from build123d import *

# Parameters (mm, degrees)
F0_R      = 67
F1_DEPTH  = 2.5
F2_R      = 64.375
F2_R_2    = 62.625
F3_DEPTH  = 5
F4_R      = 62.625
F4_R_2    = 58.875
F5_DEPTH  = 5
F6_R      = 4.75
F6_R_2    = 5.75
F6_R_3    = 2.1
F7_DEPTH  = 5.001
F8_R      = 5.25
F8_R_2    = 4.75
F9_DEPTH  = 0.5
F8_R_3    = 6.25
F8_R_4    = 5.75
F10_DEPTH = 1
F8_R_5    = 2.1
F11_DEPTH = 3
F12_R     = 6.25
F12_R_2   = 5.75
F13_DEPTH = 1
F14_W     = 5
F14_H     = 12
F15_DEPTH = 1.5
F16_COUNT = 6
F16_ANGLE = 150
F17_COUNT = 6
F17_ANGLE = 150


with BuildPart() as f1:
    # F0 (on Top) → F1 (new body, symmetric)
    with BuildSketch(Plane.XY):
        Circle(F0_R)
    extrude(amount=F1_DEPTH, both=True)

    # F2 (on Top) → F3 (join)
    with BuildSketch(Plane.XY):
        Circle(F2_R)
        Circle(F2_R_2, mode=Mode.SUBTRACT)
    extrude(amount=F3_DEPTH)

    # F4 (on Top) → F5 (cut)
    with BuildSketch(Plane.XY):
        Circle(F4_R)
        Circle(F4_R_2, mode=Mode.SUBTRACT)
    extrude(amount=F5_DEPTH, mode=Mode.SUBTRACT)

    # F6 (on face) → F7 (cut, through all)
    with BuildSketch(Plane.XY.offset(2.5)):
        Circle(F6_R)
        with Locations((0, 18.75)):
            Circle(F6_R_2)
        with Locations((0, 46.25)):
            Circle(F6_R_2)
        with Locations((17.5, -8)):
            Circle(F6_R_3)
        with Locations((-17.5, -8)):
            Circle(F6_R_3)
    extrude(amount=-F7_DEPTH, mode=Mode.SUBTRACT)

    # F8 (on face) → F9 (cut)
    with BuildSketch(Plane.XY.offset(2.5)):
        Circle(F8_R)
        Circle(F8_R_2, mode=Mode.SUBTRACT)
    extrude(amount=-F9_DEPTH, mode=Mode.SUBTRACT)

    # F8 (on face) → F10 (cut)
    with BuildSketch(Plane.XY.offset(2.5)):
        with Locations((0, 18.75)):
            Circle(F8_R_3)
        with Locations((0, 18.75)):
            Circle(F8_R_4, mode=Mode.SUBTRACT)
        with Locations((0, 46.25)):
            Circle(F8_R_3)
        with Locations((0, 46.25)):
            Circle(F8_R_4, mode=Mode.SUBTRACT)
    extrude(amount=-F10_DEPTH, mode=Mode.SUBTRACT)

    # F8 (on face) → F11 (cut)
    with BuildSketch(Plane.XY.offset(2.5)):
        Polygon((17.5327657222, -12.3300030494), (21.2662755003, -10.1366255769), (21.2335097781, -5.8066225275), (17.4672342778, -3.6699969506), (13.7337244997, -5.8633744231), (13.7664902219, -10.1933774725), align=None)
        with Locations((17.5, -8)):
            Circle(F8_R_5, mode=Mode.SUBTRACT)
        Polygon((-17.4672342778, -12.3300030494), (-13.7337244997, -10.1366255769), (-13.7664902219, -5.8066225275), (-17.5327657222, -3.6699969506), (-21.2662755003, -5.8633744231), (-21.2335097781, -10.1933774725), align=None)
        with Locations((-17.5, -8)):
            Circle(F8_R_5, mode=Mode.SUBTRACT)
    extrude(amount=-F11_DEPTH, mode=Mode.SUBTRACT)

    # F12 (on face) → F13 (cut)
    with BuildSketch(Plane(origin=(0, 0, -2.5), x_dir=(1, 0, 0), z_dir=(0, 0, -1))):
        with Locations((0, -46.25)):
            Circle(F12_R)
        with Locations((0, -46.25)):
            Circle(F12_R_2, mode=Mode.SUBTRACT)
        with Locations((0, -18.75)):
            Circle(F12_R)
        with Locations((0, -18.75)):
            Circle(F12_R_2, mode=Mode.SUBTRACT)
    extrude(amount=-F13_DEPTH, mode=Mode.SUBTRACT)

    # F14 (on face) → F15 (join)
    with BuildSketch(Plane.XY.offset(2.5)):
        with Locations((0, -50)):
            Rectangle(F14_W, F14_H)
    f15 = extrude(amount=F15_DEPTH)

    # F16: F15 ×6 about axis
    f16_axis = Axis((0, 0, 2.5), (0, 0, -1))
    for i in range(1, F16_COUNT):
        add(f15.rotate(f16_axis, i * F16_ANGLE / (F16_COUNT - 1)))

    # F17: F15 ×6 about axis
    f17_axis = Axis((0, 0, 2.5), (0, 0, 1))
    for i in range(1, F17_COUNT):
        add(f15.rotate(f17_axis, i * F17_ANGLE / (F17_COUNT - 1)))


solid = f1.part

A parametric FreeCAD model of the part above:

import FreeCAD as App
import Part
import Sketcher

doc = App.newDocument("Part")
body = doc.addObject("PartDesign::Body", "Body")

# Sketch on XY plane
sketch1 = body.newObject("Sketcher::SketchObject", "Sketch")
sketch1.AttachmentSupport = (doc.getObject("XY_Plane"), [""])
sketch1.MapMode = "FlatFace"
sketch1.addGeometry(Part.Circle(App.Vector(0, 0, 0), App.Vector(0, 0, 1), 67), False)
sketch1.addConstraint([
    Sketcher.Constraint("Coincident", 0, 3, -1, 1),
    Sketcher.Constraint("Diameter", 0, 134.0),
])
pad1 = body.newObject("PartDesign::Pad", "Pad")
pad1.Profile = sketch1
pad1.Length = 5
pad1.Midplane = True

# Sketch on XY plane
sketch2 = body.newObject("Sketcher::SketchObject", "Sketch001")
sketch2.AttachmentSupport = (doc.getObject("XY_Plane"), [""])
sketch2.MapMode = "FlatFace"
sketch2.addGeometry([
    Part.Circle(App.Vector(0, 0, 0), App.Vector(0, 0, 1), 64),
    Part.Circle(App.Vector(0, 0, 0), App.Vector(0, 0, 1), 63),
], False)
sketch2.addConstraint([
    Sketcher.Constraint("Coincident", 0, 3, -1, 1),
    Sketcher.Constraint("Coincident", 1, 3, -1, 1),
    Sketcher.Constraint("Diameter", 0, 128.75),
    Sketcher.Constraint("Diameter", 1, 125.25),
])
pad2 = body.newObject("PartDesign::Pad", "Pad001")
pad2.Profile = sketch2
pad2.Length = 5

# Sketch on XY plane
sketch3 = body.newObject("Sketcher::SketchObject", "Sketch002")
sketch3.AttachmentSupport = (doc.getObject("XY_Plane"), [""])
sketch3.MapMode = "FlatFace"
sketch3.addGeometry([
    Part.Circle(App.Vector(0, 0, 0), App.Vector(0, 0, 1), 63),
    Part.Circle(App.Vector(0, 0, 0), App.Vector(0, 0, 1), 59),
], False)
sketch3.addConstraint([
    Sketcher.Constraint("Coincident", 0, 3, -1, 1),
    Sketcher.Constraint("Coincident", 1, 3, -1, 1),
    Sketcher.Constraint("Diameter", 0, 125.25),
    Sketcher.Constraint("Diameter", 1, 117.75),
])
pocket1 = body.newObject("PartDesign::Pocket", "Pocket")
pocket1.Profile = sketch3
pocket1.Length = 5
pocket1.Reversed = True

# Sketch on XY plane
sketch4 = body.newObject("Sketcher::SketchObject", "Sketch003")
sketch4.AttachmentSupport = (doc.getObject("XY_Plane"), [""])
sketch4.MapMode = "FlatFace"
sketch4.AttachmentOffset = App.Placement(App.Vector(0, 0, 2.5), App.Rotation())
sketch4.addGeometry([
    Part.Circle(App.Vector(0, 0, 0), App.Vector(0, 0, 1), 4.8),  # 0
    Part.Circle(App.Vector(0, 18.8, 0), App.Vector(0, 0, 1), 5.8),  # 1
    Part.Circle(App.Vector(0, 46.2, 0), App.Vector(0, 0, 1), 5.8),  # 2
    Part.Circle(App.Vector(17.5, -8, 0), App.Vector(0, 0, 1), 2.1),  # 3
    Part.Circle(App.Vector(-17.5, -8, 0), App.Vector(0, 0, 1), 2.1),  # 4
], False)
sketch4.addConstraint([
    Sketcher.Constraint("Coincident", 0, 3, -1, 1),
    Sketcher.Constraint("Equal", 1, 2),
    Sketcher.Constraint("Equal", 3, 4),
    Sketcher.Constraint("Symmetric", 3, 3, 4, 3, -2),
    Sketcher.Constraint("PointOnObject", 1, 3, -2),
    Sketcher.Constraint("PointOnObject", 2, 3, -2),
    Sketcher.Constraint("Diameter", 0, 9.5),
    Sketcher.Constraint("Diameter", 1, 11.5),
    Sketcher.Constraint("Diameter", 3, 4.2),
    Sketcher.Constraint("DistanceY", 3, 3, -1, 1, 8.0),
    Sketcher.Constraint("DistanceX", 4, 3, 3, 3, 35.0),
    Sketcher.Constraint("DistanceY", 1, 3, 2, 3, 27.5),
    Sketcher.Constraint("DistanceY", -1, 1, 1, 3, 18.75),
])
pocket2 = body.newObject("PartDesign::Pocket", "Pocket001")
pocket2.Profile = sketch4
pocket2.Type = "ThroughAll"

# Sketch on XY plane
sketch5 = body.newObject("Sketcher::SketchObject", "Sketch004")
sketch5.AttachmentSupport = (doc.getObject("XY_Plane"), [""])
sketch5.MapMode = "FlatFace"
sketch5.AttachmentOffset = App.Placement(App.Vector(0, 0, 2.5), App.Rotation())
sketch5.addGeometry([
    Part.Circle(App.Vector(0, 0, 0), App.Vector(0, 0, 1), 5.2),
    Part.Circle(App.Vector(0, 0, 0), App.Vector(0, 0, 1), 4.8),
], False)
sketch5.addConstraint([
    Sketcher.Constraint("Coincident", 0, 3, -1, 1),
    Sketcher.Constraint("Coincident", 1, 3, -1, 1),
    Sketcher.Constraint("Diameter", 0, 10.5),
    Sketcher.Constraint("Diameter", 1, 9.5),
])
pocket3 = body.newObject("PartDesign::Pocket", "Pocket002")
pocket3.Profile = sketch5
pocket3.Length = 0.5

# Sketch on XY plane
sketch6 = body.newObject("Sketcher::SketchObject", "Sketch005")
sketch6.AttachmentSupport = (doc.getObject("XY_Plane"), [""])
sketch6.MapMode = "FlatFace"
sketch6.AttachmentOffset = App.Placement(App.Vector(0, 0, 2.5), App.Rotation())
sketch6.addGeometry([
    Part.Circle(App.Vector(0, 19, 0), App.Vector(0, 0, 1), 6),
    Part.Circle(App.Vector(0, 19, 0), App.Vector(0, 0, 1), 6),
    Part.Circle(App.Vector(0, 46, 0), App.Vector(0, 0, 1), 6),
    Part.Circle(App.Vector(0, 46, 0), App.Vector(0, 0, 1), 6),
], False)
sketch6.addConstraint([
    Sketcher.Constraint("Coincident", 1, 3, 0, 3),
    Sketcher.Constraint("Coincident", 3, 3, 2, 3),
    Sketcher.Constraint("Equal", 0, 2),
    Sketcher.Constraint("Equal", 1, 3),
    Sketcher.Constraint("PointOnObject", 0, 3, -2),
    Sketcher.Constraint("PointOnObject", 2, 3, -2),
    Sketcher.Constraint("Diameter", 0, 12.5),
    Sketcher.Constraint("Diameter", 1, 11.5),
    Sketcher.Constraint("DistanceY", 0, 3, 2, 3, 27.5),
    Sketcher.Constraint("DistanceY", -1, 1, 0, 3, 18.75),
])
pocket4 = body.newObject("PartDesign::Pocket", "Pocket003")
pocket4.Profile = sketch6
pocket4.Length = 1

# Sketch on XY plane
sketch7 = body.newObject("Sketcher::SketchObject", "Sketch006")
sketch7.AttachmentSupport = (doc.getObject("XY_Plane"), [""])
sketch7.MapMode = "FlatFace"
sketch7.AttachmentOffset = App.Placement(App.Vector(0, 0, 2.5), App.Rotation())
sketch7.addGeometry([
    Part.LineSegment(App.Vector(17.5, -12.3, 0), App.Vector(21.3, -10.1, 0)),  # 0
    Part.LineSegment(App.Vector(21.3, -10.1, 0), App.Vector(21.2, -5.8, 0)),  # 1
    Part.LineSegment(App.Vector(21.2, -5.8, 0), App.Vector(17.5, -3.7, 0)),  # 2
    Part.LineSegment(App.Vector(17.5, -3.7, 0), App.Vector(13.7, -5.9, 0)),  # 3
    Part.LineSegment(App.Vector(13.7, -5.9, 0), App.Vector(13.8, -10.2, 0)),  # 4
    Part.LineSegment(App.Vector(13.8, -10.2, 0), App.Vector(17.5, -12.3, 0)),  # 5
    Part.Circle(App.Vector(17.5, -8, 0), App.Vector(0, 0, 1), 2.1),  # 6
    Part.LineSegment(App.Vector(-17.5, -12.3, 0), App.Vector(-13.7, -10.1, 0)),  # 7
    Part.LineSegment(App.Vector(-13.7, -10.1, 0), App.Vector(-13.8, -5.8, 0)),  # 8
    Part.LineSegment(App.Vector(-13.8, -5.8, 0), App.Vector(-17.5, -3.7, 0)),  # 9
    Part.LineSegment(App.Vector(-17.5, -3.7, 0), App.Vector(-21.3, -5.9, 0)),  # 10
    Part.LineSegment(App.Vector(-21.3, -5.9, 0), App.Vector(-21.2, -10.2, 0)),  # 11
    Part.LineSegment(App.Vector(-21.2, -10.2, 0), App.Vector(-17.5, -12.3, 0)),  # 12
    Part.Circle(App.Vector(-17.5, -8, 0), App.Vector(0, 0, 1), 2.1),  # 13
], False)
sketch7.addConstraint([
    Sketcher.Constraint("Coincident", 0, 2, 1, 1),
    Sketcher.Constraint("Coincident", 1, 2, 2, 1),
    Sketcher.Constraint("Coincident", 2, 2, 3, 1),
    Sketcher.Constraint("Coincident", 3, 2, 4, 1),
    Sketcher.Constraint("Coincident", 4, 2, 5, 1),
    Sketcher.Constraint("Coincident", 5, 2, 0, 1),
    Sketcher.Constraint("Coincident", 7, 2, 8, 1),
    Sketcher.Constraint("Coincident", 8, 2, 9, 1),
    Sketcher.Constraint("Coincident", 9, 2, 10, 1),
    Sketcher.Constraint("Coincident", 10, 2, 11, 1),
    Sketcher.Constraint("Coincident", 11, 2, 12, 1),
    Sketcher.Constraint("Coincident", 12, 2, 7, 1),
    Sketcher.Constraint("Equal", 6, 13),
    Sketcher.Constraint("Symmetric", 6, 3, 13, 3, -2),
    Sketcher.Constraint("Parallel", 0, 3),
    Sketcher.Constraint("Parallel", 1, 4),
    Sketcher.Constraint("Parallel", 2, 5),
    Sketcher.Constraint("Parallel", 3, 7),
    Sketcher.Constraint("Parallel", 4, 8),
    Sketcher.Constraint("Parallel", 5, 9),
    Sketcher.Constraint("Parallel", 7, 10),
    Sketcher.Constraint("Parallel", 8, 11),
    Sketcher.Constraint("Parallel", 9, 12),
    Sketcher.Constraint("Horizontal", 0, 2, 7, 2),
    Sketcher.Constraint("Horizontal", 1, 2, 8, 2),
    Sketcher.Constraint("Horizontal", 2, 2, 9, 2),
    Sketcher.Constraint("Horizontal", 3, 2, 10, 2),
    Sketcher.Constraint("Horizontal", 4, 2, 11, 2),
    Sketcher.Constraint("Equal", 0, 1),
    Sketcher.Constraint("Equal", 1, 2),
    Sketcher.Constraint("Equal", 2, 3),
    Sketcher.Constraint("Diameter", 6, 4.2),
    Sketcher.Constraint("DistanceY", 6, 3, -1, 1, 8.0),
    Sketcher.Constraint("DistanceX", 13, 3, 6, 3, 35.0),
    Sketcher.Constraint("DistanceX", 10, 2, 3, 2, 35.0),
    Sketcher.Constraint("DistanceX", -1, 1, 1, 2, 21.23351),
    Sketcher.Constraint("DistanceX", -1, 1, 4, 2, 13.76649),
    Sketcher.Constraint("DistanceX", 2, 2, 0, 2, 3.799041),
    Sketcher.Constraint("DistanceY", 0, 2, 2, 2, 6.466629),
    Sketcher.Constraint("DistanceX", 3, 2, 2, 2, 3.73351),
    Sketcher.Constraint("DistanceY", 0, 2, -1, 1, 10.136626),
])
pocket5 = body.newObject("PartDesign::Pocket", "Pocket004")
pocket5.Profile = sketch7
pocket5.Length = 3

# Sketch on XY plane
sketch8 = body.newObject("Sketcher::SketchObject", "Sketch007")
sketch8.AttachmentSupport = (doc.getObject("XY_Plane"), [""])
sketch8.MapMode = "FlatFace"
sketch8.AttachmentOffset = App.Placement(App.Vector(0, 0, -2.5), App.Rotation())
sketch8.addGeometry([
    Part.Circle(App.Vector(0, 46, 0), App.Vector(0, 0, 1), 6),
    Part.Circle(App.Vector(0, 46, 0), App.Vector(0, 0, 1), 6),
    Part.Circle(App.Vector(0, 19, 0), App.Vector(0, 0, 1), 6),
    Part.Circle(App.Vector(0, 19, 0), App.Vector(0, 0, 1), 6),
], False)
sketch8.addConstraint([
    Sketcher.Constraint("Coincident", 1, 3, 0, 3),
    Sketcher.Constraint("Coincident", 3, 3, 2, 3),
    Sketcher.Constraint("Equal", 0, 2),
    Sketcher.Constraint("Equal", 1, 3),
    Sketcher.Constraint("PointOnObject", 0, 3, -2),
    Sketcher.Constraint("PointOnObject", 2, 3, -2),
    Sketcher.Constraint("Diameter", 0, 12.5),
    Sketcher.Constraint("Diameter", 1, 11.5),
    Sketcher.Constraint("DistanceY", 2, 3, 0, 3, 27.5),
    Sketcher.Constraint("DistanceY", -1, 1, 0, 3, 46.25),
])
pocket6 = body.newObject("PartDesign::Pocket", "Pocket005")
pocket6.Profile = sketch8
pocket6.Length = 1
pocket6.Reversed = True

# Sketch on XY plane
sketch9 = body.newObject("Sketcher::SketchObject", "Sketch008")
sketch9.AttachmentSupport = (doc.getObject("XY_Plane"), [""])
sketch9.MapMode = "FlatFace"
sketch9.AttachmentOffset = App.Placement(App.Vector(0, 0, 2.5), App.Rotation())
sketch9.addGeometry([
    Part.LineSegment(App.Vector(-2, -44, 0), App.Vector(-2, -56, 0)),
    Part.LineSegment(App.Vector(-2, -56, 0), App.Vector(2, -56, 0)),
    Part.LineSegment(App.Vector(2, -56, 0), App.Vector(2, -44, 0)),
    Part.LineSegment(App.Vector(2, -44, 0), App.Vector(-2, -44, 0)),
], False)
sketch9.addConstraint([
    Sketcher.Constraint("Coincident", 0, 2, 1, 1),
    Sketcher.Constraint("Coincident", 1, 2, 2, 1),
    Sketcher.Constraint("Coincident", 2, 2, 3, 1),
    Sketcher.Constraint("Coincident", 3, 2, 0, 1),
    Sketcher.Constraint("Vertical", 0),
    Sketcher.Constraint("Horizontal", 1),
    Sketcher.Constraint("Vertical", 2),
    Sketcher.Constraint("Horizontal", 3),
    Sketcher.Constraint("DistanceX", 1, 1, 1, 2, 5.0),
    Sketcher.Constraint("DistanceY", 0, 2, 0, 1, 12.0),
    Sketcher.Constraint("DistanceY", 0, 2, -1, 1, 56.0),
    Sketcher.Constraint("DistanceX", 0, 2, -1, 1, 2.5),
])
pad3 = body.newObject("PartDesign::Pad", "Pad002")
pad3.Profile = sketch9
pad3.Length = 1.5
doc.recompute()

polarpattern = body.newObject("PartDesign::PolarPattern", "PolarPattern")
polarpattern.Originals = [pad3]
polarpattern.Axis = (doc.getObject("Z_Axis"), [""])
polarpattern.Angle = 150
polarpattern.Occurrences = 6
polarpattern.Reversed = True
body.Tip = polarpattern
doc.recompute()

polarpattern2 = body.newObject("PartDesign::PolarPattern", "PolarPattern001")
polarpattern2.Originals = [pad3]
polarpattern2.Axis = (doc.getObject("Z_Axis"), [""])
polarpattern2.Angle = 150
polarpattern2.Occurrences = 6
body.Tip = polarpattern2

doc.recompute()
